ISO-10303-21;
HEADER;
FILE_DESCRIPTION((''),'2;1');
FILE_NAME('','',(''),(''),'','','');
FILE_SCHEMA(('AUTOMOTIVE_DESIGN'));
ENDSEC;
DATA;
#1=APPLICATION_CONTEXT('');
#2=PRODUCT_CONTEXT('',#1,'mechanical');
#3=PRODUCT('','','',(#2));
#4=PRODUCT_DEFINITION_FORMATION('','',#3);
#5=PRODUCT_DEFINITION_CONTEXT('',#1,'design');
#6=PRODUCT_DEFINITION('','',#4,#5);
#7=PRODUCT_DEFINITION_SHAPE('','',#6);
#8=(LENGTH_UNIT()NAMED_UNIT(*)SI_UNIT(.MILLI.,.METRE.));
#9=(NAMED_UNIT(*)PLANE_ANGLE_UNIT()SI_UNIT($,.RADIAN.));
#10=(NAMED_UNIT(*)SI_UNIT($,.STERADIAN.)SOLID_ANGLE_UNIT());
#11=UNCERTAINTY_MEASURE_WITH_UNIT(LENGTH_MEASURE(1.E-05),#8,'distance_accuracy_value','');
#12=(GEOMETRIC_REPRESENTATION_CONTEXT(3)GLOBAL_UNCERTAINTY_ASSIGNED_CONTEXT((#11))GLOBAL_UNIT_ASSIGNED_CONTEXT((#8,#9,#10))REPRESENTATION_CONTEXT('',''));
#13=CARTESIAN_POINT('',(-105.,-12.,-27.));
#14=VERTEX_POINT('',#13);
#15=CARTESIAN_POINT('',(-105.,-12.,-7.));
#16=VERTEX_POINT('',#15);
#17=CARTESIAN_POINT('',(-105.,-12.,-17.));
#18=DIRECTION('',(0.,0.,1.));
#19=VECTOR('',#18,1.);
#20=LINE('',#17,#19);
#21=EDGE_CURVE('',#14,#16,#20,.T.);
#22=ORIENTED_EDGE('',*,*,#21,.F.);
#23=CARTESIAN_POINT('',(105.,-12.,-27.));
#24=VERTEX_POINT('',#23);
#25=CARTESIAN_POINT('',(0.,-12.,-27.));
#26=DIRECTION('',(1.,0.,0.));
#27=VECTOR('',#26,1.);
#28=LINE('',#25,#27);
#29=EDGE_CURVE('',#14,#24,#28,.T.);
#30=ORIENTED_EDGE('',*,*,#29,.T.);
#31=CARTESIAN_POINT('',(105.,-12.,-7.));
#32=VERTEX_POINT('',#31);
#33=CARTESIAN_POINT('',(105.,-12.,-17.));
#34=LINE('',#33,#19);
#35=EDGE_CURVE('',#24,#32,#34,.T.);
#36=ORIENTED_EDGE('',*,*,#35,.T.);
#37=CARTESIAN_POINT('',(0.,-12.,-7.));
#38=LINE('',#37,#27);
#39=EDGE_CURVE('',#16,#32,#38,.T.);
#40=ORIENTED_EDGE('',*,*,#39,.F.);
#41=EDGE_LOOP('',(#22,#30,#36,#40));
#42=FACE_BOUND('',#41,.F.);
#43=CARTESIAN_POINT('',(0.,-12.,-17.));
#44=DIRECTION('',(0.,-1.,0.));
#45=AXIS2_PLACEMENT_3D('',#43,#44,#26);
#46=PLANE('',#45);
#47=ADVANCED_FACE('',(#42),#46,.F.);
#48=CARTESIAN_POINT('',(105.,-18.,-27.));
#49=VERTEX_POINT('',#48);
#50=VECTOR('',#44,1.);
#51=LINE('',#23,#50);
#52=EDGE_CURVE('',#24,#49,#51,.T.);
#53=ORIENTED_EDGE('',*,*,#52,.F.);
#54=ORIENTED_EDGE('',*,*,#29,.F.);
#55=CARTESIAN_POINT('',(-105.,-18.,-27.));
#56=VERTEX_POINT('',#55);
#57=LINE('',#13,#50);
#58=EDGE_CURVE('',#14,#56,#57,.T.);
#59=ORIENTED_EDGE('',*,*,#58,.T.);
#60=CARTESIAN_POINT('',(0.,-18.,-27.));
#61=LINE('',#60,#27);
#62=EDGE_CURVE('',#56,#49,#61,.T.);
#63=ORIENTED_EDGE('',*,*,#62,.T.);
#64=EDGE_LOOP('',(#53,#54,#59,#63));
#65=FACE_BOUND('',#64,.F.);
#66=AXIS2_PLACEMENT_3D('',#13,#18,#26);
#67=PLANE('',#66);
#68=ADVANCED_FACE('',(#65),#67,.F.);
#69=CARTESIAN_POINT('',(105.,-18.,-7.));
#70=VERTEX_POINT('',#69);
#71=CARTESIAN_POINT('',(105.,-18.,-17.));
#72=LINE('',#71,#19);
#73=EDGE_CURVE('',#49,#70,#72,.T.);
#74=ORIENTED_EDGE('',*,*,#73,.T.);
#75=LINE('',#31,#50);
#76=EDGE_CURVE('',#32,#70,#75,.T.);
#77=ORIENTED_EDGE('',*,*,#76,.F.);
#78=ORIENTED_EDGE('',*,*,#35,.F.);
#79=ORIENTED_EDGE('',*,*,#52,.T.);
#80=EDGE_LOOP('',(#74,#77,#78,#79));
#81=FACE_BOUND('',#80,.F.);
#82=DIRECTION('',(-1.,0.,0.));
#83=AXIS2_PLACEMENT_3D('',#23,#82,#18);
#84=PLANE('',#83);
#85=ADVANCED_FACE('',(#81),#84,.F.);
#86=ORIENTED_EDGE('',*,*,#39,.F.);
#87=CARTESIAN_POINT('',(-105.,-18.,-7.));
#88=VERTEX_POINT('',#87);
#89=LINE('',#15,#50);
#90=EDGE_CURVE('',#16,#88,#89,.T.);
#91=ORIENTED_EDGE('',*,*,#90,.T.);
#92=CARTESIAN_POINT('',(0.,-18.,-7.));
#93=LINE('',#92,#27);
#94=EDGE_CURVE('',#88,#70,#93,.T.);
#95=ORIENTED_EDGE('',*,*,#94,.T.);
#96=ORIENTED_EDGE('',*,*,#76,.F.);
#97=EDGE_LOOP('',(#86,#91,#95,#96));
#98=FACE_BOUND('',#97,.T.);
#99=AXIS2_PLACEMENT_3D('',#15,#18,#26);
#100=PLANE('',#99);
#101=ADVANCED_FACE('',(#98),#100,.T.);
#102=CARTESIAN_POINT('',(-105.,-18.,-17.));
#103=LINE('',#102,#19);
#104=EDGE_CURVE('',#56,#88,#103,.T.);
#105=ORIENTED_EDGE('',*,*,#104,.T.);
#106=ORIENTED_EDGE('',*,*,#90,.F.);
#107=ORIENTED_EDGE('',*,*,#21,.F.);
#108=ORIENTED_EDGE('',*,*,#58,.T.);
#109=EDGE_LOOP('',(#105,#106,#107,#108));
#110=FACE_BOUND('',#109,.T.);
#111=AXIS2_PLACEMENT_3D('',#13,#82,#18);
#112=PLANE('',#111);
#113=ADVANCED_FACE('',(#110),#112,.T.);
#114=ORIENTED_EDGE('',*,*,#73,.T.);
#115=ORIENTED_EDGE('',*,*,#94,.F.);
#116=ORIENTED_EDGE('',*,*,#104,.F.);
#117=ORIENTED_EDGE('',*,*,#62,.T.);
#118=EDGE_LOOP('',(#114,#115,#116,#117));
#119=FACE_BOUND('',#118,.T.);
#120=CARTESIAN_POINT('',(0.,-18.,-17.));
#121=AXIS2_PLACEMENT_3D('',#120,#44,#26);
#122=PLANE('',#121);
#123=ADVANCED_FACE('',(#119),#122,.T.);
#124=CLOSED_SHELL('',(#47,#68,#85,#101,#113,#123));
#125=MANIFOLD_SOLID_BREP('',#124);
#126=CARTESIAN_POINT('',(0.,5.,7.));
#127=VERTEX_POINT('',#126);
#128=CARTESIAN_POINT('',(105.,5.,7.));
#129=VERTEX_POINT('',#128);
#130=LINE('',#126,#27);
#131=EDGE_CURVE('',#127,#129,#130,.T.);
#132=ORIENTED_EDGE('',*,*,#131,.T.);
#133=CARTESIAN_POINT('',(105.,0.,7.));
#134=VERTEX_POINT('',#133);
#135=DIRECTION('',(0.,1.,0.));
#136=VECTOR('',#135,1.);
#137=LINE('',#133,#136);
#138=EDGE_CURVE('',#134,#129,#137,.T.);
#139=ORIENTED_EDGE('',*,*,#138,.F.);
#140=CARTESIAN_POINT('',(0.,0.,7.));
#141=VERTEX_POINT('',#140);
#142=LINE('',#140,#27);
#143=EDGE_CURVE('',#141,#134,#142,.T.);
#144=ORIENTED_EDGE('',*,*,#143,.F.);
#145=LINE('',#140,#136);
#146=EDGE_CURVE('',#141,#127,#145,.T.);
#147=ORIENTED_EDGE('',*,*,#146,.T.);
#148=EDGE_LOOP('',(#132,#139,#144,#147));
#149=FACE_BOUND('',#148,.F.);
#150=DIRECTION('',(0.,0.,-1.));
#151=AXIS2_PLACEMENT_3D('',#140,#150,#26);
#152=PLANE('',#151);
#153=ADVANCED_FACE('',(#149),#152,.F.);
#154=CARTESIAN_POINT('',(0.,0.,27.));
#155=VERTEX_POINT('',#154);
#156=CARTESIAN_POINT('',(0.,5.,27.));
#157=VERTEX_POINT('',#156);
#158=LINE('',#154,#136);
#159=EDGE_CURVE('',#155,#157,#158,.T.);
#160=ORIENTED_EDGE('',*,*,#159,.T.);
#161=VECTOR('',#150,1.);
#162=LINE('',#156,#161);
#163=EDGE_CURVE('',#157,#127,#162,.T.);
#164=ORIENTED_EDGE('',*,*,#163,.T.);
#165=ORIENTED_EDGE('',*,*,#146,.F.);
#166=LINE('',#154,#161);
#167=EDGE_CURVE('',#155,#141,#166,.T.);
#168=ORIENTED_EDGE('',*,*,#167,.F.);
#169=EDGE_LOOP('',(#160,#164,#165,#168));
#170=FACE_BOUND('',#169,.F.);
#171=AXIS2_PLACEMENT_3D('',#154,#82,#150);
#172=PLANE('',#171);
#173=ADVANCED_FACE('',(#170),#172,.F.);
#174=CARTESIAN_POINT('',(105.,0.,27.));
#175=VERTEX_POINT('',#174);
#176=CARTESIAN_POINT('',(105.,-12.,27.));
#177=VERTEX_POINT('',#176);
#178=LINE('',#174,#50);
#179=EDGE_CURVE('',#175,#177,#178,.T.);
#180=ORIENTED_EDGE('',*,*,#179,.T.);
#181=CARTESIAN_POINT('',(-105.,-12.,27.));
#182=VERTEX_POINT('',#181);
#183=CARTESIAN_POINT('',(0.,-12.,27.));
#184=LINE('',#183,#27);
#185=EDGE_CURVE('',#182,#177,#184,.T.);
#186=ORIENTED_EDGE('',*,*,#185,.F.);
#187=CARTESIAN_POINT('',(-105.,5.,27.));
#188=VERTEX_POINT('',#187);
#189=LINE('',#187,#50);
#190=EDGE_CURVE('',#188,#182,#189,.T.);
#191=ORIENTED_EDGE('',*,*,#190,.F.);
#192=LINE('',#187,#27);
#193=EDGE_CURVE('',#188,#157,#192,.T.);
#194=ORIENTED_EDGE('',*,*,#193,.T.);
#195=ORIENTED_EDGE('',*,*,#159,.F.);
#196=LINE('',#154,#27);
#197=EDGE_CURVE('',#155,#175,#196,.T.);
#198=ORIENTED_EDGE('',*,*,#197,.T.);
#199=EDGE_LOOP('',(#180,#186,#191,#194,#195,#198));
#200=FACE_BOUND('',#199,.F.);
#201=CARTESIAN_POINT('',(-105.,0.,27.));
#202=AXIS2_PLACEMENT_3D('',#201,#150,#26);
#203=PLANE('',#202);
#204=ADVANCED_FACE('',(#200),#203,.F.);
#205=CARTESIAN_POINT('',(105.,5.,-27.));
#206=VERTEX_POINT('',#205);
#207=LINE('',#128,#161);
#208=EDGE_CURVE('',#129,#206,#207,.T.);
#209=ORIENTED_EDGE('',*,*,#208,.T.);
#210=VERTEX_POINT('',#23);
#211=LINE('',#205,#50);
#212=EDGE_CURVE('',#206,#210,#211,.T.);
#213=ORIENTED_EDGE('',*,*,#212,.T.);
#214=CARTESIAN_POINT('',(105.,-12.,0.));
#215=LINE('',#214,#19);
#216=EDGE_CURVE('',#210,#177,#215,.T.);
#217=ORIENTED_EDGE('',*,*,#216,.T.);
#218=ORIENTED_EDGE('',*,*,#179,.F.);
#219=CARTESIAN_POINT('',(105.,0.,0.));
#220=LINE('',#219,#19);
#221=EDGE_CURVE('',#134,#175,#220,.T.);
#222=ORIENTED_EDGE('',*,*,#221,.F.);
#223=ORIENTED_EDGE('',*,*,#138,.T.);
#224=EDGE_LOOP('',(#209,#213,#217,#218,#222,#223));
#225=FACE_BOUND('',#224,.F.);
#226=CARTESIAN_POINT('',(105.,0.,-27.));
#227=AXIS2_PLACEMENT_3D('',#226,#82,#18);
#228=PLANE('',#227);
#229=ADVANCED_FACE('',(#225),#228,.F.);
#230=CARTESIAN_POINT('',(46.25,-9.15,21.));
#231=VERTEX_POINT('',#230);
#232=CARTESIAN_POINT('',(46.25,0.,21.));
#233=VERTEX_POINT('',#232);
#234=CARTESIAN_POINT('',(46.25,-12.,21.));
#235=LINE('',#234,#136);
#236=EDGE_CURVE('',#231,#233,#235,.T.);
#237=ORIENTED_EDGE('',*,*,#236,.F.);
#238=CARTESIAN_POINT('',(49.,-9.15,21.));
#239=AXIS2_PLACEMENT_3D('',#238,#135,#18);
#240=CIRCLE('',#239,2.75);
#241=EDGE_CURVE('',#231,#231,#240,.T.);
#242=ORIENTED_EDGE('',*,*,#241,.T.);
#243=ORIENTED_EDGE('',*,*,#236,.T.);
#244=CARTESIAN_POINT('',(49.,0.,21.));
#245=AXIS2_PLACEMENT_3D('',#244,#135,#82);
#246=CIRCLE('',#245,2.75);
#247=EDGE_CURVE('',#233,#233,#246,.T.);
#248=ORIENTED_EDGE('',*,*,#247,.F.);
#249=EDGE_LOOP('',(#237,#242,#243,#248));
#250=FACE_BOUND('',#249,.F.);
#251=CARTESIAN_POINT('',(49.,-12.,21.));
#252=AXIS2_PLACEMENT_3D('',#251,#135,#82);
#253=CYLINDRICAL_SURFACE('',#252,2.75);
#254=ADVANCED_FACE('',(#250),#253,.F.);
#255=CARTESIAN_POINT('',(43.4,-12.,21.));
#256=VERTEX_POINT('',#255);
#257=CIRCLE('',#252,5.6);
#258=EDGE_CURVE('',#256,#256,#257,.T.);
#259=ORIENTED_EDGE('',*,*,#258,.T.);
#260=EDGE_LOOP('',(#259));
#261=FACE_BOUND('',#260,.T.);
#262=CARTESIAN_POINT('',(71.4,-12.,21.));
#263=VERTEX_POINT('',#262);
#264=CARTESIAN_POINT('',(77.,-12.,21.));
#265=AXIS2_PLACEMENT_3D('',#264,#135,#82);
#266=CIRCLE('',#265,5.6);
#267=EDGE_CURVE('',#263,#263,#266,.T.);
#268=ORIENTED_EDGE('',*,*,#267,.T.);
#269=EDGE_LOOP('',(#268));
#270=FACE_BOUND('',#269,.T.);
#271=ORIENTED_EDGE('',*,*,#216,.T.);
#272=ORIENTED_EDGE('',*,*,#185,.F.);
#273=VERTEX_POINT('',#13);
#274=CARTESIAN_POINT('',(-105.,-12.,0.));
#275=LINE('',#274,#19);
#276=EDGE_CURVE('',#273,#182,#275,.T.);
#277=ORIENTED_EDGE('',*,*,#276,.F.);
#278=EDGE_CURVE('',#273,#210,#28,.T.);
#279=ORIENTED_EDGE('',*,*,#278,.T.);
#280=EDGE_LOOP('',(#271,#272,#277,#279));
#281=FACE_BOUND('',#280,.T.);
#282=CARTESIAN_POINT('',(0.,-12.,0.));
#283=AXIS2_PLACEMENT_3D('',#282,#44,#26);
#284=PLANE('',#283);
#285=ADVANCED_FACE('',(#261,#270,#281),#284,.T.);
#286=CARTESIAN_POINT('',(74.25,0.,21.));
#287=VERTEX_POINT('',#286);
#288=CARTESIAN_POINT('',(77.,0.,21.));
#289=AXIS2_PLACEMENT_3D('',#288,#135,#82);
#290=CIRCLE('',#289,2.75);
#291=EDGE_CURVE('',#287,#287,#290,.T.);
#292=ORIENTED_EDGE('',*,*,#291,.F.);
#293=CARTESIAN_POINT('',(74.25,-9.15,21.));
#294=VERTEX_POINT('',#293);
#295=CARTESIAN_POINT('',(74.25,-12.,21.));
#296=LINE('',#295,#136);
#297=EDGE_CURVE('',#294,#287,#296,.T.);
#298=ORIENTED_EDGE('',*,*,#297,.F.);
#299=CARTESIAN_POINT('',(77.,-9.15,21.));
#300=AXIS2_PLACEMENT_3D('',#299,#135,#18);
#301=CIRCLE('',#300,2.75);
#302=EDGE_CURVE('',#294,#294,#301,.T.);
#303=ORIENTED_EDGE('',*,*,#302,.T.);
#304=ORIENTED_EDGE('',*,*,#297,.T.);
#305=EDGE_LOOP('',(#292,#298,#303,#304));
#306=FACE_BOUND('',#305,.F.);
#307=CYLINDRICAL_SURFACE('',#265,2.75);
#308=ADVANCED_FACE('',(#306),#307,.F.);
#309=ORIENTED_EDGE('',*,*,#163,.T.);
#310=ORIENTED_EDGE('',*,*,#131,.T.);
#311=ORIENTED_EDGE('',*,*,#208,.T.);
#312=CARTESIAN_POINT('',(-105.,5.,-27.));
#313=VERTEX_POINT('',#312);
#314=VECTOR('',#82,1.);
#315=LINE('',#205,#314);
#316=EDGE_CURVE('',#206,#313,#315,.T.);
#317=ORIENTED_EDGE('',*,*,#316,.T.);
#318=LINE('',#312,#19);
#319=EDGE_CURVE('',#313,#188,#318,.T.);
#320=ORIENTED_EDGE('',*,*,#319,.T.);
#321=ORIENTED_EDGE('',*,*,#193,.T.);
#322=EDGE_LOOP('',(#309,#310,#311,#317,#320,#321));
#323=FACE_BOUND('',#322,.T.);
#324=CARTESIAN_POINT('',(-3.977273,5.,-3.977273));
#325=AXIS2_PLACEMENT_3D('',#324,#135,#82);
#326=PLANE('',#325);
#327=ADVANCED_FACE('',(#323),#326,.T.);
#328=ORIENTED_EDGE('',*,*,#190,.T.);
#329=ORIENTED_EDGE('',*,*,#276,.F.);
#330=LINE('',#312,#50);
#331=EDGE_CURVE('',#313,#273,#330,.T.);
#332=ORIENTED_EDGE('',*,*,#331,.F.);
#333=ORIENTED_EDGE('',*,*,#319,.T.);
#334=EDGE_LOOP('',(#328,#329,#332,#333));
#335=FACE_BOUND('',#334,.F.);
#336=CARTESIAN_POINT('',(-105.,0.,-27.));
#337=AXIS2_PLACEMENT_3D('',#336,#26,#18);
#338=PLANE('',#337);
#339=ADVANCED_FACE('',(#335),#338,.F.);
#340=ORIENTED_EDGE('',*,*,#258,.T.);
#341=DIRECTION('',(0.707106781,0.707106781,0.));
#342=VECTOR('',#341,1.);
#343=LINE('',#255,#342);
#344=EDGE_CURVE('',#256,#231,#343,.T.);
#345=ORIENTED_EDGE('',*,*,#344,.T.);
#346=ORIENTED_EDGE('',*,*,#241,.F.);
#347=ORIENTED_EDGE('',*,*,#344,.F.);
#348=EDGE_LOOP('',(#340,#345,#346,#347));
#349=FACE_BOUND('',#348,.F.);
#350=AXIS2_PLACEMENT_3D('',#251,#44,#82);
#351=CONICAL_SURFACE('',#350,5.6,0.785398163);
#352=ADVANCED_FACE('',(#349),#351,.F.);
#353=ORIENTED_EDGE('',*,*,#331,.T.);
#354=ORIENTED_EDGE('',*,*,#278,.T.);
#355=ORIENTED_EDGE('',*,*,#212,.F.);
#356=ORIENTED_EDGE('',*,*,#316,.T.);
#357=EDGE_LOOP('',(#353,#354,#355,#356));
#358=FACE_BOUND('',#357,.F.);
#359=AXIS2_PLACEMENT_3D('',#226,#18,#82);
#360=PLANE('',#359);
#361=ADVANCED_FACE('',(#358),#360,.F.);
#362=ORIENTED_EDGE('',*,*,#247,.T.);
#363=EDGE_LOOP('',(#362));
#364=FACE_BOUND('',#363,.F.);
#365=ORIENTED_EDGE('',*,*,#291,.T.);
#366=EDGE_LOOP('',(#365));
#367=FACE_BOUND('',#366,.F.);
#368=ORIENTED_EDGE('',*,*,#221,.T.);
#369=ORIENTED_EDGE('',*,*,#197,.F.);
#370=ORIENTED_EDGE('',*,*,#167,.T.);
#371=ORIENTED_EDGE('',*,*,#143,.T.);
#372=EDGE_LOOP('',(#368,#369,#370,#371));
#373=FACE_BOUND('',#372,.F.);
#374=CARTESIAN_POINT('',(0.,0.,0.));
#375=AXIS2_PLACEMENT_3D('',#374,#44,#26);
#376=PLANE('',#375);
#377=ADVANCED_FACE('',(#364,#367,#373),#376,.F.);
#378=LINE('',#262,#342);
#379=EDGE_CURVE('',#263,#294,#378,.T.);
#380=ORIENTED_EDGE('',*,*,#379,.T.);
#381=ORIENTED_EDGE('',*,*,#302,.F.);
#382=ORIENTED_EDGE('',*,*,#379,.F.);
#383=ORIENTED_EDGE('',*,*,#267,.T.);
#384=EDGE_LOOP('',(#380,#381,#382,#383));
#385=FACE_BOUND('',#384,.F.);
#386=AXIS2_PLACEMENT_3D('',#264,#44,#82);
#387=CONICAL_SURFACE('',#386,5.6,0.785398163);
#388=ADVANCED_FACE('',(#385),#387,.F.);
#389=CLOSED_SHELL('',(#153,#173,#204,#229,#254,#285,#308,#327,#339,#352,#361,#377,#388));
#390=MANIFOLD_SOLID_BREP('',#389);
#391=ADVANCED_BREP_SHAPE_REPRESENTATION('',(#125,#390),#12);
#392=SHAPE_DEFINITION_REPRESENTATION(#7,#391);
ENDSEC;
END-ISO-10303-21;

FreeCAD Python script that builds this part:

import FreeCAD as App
import Part
import Sketcher

V = App.Vector
Q = App.Units.Quantity

doc = App.newDocument("Part")
params = doc.addObject("Spreadsheet::Sheet", "Params")
for row, (alias, value) in enumerate([
    ("sketch1_width", "210 mm"),
    ("sketch1_height", "54 mm"),
    ("pad1_length", "12 mm"),
    ("sketch2_width", "105 mm"),
    ("sketch2_height", "20 mm"),
    ("sketch2_height2", "34 mm"),
    ("pad2_length", "5 mm"),
    ("sketch3_diameter", "5.5 mm"),
    ("hole_diameter", "5.5 mm"),
    ("hole_csink_diameter", "11.2 mm"),
    ("sketch4_width", "210 mm"),
    ("sketch4_height", "20 mm"),
    ("pad3_length", "6 mm"),
], start=1):
    params.set(f"A{row}", alias)
    params.set(f"B{row}", "=" + value)
    params.setAlias(f"B{row}", alias)

body = doc.addObject("PartDesign::Body", "Body")

# Sketch on XZ plane
sketch1 = body.newObject("Sketcher::SketchObject", "Sketch")
sketch1.AttachmentSupport = (doc.getObject("XZ_Plane"), [""])
sketch1.MapMode = "FlatFace"
sketch1.addGeometry(Part.LineSegment(V(-105, 27, 0), V(-105, -27, 0)), False)
sketch1.addGeometry(Part.LineSegment(V(-105, -27, 0), V(105, -27, 0)), False)
sketch1.addGeometry(Part.LineSegment(V(105, -27, 0), V(105, 27, 0)), False)
sketch1.addGeometry(Part.LineSegment(V(105, 27, 0), V(-105, 27, 0)), False)
sketch1.addConstraint(Sketcher.Constraint("Coincident", 0, 2, 1, 1))
sketch1.addConstraint(Sketcher.Constraint("Coincident", 1, 2, 2, 1))
sketch1.addConstraint(Sketcher.Constraint("Coincident", 2, 2, 3, 1))
sketch1.addConstraint(Sketcher.Constraint("Coincident", 3, 2, 0, 1))
sketch1.addConstraint(Sketcher.Constraint("Vertical", 0))
sketch1.addConstraint(Sketcher.Constraint("Horizontal", 1))
sketch1.addConstraint(Sketcher.Constraint("Vertical", 2))
sketch1.addConstraint(Sketcher.Constraint("Horizontal", 3))
sketch1.addConstraint(Sketcher.Constraint("Symmetric", 0, 2, 2, 2, -1, 1))
sketch1.addConstraint(Sketcher.Constraint("DistanceX", 1, 1, 1, 2, Q("210 mm")))
sketch1.addConstraint(Sketcher.Constraint("DistanceY", 0, 2, 0, 1, Q("54 mm")))
sketch1.setExpression("Constraints[9]", "Params.sketch1_width")
sketch1.setExpression("Constraints[10]", "Params.sketch1_height")
pad1 = body.newObject("PartDesign::Pad", "Pad")
pad1.Profile = sketch1
pad1.setExpression("Length", "Params.pad1_length")

# Sketch on XZ plane
sketch2 = body.newObject("Sketcher::SketchObject", "Sketch001")
sketch2.AttachmentSupport = (doc.getObject("XZ_Plane"), [""])
sketch2.MapMode = "FlatFace"
sketch2.addGeometry(Part.LineSegment(V(-105, 27, 0), V(0, 27, 0)), False)
sketch2.addGeometry(Part.LineSegment(V(0, 27, 0), V(0, 7, 0)), False)
sketch2.addGeometry(Part.LineSegment(V(0, 7, 0), V(105, 7, 0)), False)
sketch2.addGeometry(Part.LineSegment(V(105, 7, 0), V(105, -27, 0)), False)
sketch2.addGeometry(Part.LineSegment(V(105, -27, 0), V(-105, -27, 0)), False)
sketch2.addGeometry(Part.LineSegment(V(-105, -27, 0), V(-105, 27, 0)), False)
sketch2.addConstraint(Sketcher.Constraint("Coincident", 0, 2, 1, 1))
sketch2.addConstraint(Sketcher.Constraint("Coincident", 1, 2, 2, 1))
sketch2.addConstraint(Sketcher.Constraint("Coincident", 2, 2, 3, 1))
sketch2.addConstraint(Sketcher.Constraint("Coincident", 3, 2, 4, 1))
sketch2.addConstraint(Sketcher.Constraint("Coincident", 4, 2, 5, 1))
sketch2.addConstraint(Sketcher.Constraint("Coincident", 5, 2, 0, 1))
sketch2.addConstraint(Sketcher.Constraint("Horizontal", 0))
sketch2.addConstraint(Sketcher.Constraint("Vertical", 1))
sketch2.addConstraint(Sketcher.Constraint("Horizontal", 2))
sketch2.addConstraint(Sketcher.Constraint("Vertical", 3))
sketch2.addConstraint(Sketcher.Constraint("Horizontal", 4))
sketch2.addConstraint(Sketcher.Constraint("Vertical", 5))
sketch2.addConstraint(Sketcher.Constraint("Symmetric", 3, 2, 5, 2, -1, 1))
sketch2.addConstraint(Sketcher.Constraint("PointOnObject", 0, 2, -2))
sketch2.addConstraint(Sketcher.Constraint("DistanceX", 0, 1, 0, 2, Q("105 mm")))
sketch2.addConstraint(Sketcher.Constraint("DistanceY", 1, 2, 1, 1, Q("20 mm")))
sketch2.addConstraint(Sketcher.Constraint("DistanceY", 3, 2, 3, 1, Q("34 mm")))
sketch2.setExpression("Constraints[14]", "Params.sketch2_width")
sketch2.setExpression("Constraints[15]", "Params.sketch2_height")
sketch2.setExpression("Constraints[16]", "Params.sketch2_height2")
pad2 = body.newObject("PartDesign::Pad", "Pad001")
pad2.Profile = sketch2
pad2.setExpression("Length", "Params.pad2_length")
pad2.Reversed = True

# Sketch on XZ plane
sketch3 = body.newObject("Sketcher::SketchObject", "Sketch002")
sketch3.AttachmentSupport = (doc.getObject("XZ_Plane"), [""])
sketch3.MapMode = "FlatFace"
sketch3.AttachmentOffset = App.Placement(V(0, 0, 12), App.Rotation())
sketch3.addGeometry(Part.Circle(V(49, 21, 0), V(0, 0, 1), 2.75), False)
sketch3.addGeometry(Part.Circle(V(77, 21, 0), V(0, 0, 1), 2.75), False)
sketch3.addConstraint(Sketcher.Constraint("Equal", 0, 1))
sketch3.addConstraint(Sketcher.Constraint("Horizontal", 0, 3, 1, 3))
sketch3.addConstraint(Sketcher.Constraint("Diameter", 0, Q("5.5 mm")))
sketch3.addConstraint(Sketcher.Constraint("DistanceX", -1, 1, 0, 3, Q("49 mm")))
sketch3.addConstraint(Sketcher.Constraint("DistanceY", -1, 1, 0, 3, Q("21 mm")))
sketch3.addConstraint(Sketcher.Constraint("DistanceX", -1, 1, 1, 3, Q("77 mm")))
sketch3.setExpression("Constraints[2]", "Params.sketch3_diameter")
doc.recompute()
hole = body.newObject("PartDesign::Hole", "Hole")
hole.Profile = sketch3
hole.ThreadType = "None"
hole.setExpression("Diameter", "Params.hole_diameter")
hole.DepthType = "ThroughAll"
hole.HoleCutType = "Countersink"
hole.setExpression("HoleCutDiameter", "Params.hole_csink_diameter")
hole.HoleCutCountersinkAngle = 90
body2 = doc.addObject("PartDesign::Body", "Body001")

# Sketch on XZ plane
sketch4 = body2.newObject("Sketcher::SketchObject", "Sketch003")
sketch4.AttachmentSupport = (doc.getObject("XZ_Plane001"), [""])
sketch4.MapMode = "FlatFace"
sketch4.AttachmentOffset = App.Placement(V(0, 0, 12), App.Rotation())
sketch4.addGeometry(Part.LineSegment(V(-105, -7, 0), V(-105, -27, 0)), False)
sketch4.addGeometry(Part.LineSegment(V(-105, -27, 0), V(105, -27, 0)), False)
sketch4.addGeometry(Part.LineSegment(V(105, -27, 0), V(105, -7, 0)), False)
sketch4.addGeometry(Part.LineSegment(V(105, -7, 0), V(-105, -7, 0)), False)
sketch4.addConstraint(Sketcher.Constraint("Coincident", 0, 2, 1, 1))
sketch4.addConstraint(Sketcher.Constraint("Coincident", 1, 2, 2, 1))
sketch4.addConstraint(Sketcher.Constraint("Coincident", 2, 2, 3, 1))
sketch4.addConstraint(Sketcher.Constraint("Coincident", 3, 2, 0, 1))
sketch4.addConstraint(Sketcher.Constraint("Vertical", 0))
sketch4.addConstraint(Sketcher.Constraint("Horizontal", 1))
sketch4.addConstraint(Sketcher.Constraint("Vertical", 2))
sketch4.addConstraint(Sketcher.Constraint("Horizontal", 3))
sketch4.addConstraint(Sketcher.Constraint("DistanceX", 1, 1, 1, 2, Q("210 mm")))
sketch4.addConstraint(Sketcher.Constraint("DistanceY", 0, 2, 0, 1, Q("20 mm")))
sketch4.addConstraint(Sketcher.Constraint("DistanceX", 0, 2, -1, 1, Q("105 mm")))
sketch4.addConstraint(Sketcher.Constraint("DistanceY", 0, 2, -1, 1, Q("27 mm")))
sketch4.setExpression("Constraints[8]", "Params.sketch4_width")
sketch4.setExpression("Constraints[9]", "Params.sketch4_height")
pad3 = body2.newObject("PartDesign::Pad", "Pad002")
pad3.Profile = sketch4
pad3.setExpression("Length", "Params.pad3_length")

doc.recompute()
